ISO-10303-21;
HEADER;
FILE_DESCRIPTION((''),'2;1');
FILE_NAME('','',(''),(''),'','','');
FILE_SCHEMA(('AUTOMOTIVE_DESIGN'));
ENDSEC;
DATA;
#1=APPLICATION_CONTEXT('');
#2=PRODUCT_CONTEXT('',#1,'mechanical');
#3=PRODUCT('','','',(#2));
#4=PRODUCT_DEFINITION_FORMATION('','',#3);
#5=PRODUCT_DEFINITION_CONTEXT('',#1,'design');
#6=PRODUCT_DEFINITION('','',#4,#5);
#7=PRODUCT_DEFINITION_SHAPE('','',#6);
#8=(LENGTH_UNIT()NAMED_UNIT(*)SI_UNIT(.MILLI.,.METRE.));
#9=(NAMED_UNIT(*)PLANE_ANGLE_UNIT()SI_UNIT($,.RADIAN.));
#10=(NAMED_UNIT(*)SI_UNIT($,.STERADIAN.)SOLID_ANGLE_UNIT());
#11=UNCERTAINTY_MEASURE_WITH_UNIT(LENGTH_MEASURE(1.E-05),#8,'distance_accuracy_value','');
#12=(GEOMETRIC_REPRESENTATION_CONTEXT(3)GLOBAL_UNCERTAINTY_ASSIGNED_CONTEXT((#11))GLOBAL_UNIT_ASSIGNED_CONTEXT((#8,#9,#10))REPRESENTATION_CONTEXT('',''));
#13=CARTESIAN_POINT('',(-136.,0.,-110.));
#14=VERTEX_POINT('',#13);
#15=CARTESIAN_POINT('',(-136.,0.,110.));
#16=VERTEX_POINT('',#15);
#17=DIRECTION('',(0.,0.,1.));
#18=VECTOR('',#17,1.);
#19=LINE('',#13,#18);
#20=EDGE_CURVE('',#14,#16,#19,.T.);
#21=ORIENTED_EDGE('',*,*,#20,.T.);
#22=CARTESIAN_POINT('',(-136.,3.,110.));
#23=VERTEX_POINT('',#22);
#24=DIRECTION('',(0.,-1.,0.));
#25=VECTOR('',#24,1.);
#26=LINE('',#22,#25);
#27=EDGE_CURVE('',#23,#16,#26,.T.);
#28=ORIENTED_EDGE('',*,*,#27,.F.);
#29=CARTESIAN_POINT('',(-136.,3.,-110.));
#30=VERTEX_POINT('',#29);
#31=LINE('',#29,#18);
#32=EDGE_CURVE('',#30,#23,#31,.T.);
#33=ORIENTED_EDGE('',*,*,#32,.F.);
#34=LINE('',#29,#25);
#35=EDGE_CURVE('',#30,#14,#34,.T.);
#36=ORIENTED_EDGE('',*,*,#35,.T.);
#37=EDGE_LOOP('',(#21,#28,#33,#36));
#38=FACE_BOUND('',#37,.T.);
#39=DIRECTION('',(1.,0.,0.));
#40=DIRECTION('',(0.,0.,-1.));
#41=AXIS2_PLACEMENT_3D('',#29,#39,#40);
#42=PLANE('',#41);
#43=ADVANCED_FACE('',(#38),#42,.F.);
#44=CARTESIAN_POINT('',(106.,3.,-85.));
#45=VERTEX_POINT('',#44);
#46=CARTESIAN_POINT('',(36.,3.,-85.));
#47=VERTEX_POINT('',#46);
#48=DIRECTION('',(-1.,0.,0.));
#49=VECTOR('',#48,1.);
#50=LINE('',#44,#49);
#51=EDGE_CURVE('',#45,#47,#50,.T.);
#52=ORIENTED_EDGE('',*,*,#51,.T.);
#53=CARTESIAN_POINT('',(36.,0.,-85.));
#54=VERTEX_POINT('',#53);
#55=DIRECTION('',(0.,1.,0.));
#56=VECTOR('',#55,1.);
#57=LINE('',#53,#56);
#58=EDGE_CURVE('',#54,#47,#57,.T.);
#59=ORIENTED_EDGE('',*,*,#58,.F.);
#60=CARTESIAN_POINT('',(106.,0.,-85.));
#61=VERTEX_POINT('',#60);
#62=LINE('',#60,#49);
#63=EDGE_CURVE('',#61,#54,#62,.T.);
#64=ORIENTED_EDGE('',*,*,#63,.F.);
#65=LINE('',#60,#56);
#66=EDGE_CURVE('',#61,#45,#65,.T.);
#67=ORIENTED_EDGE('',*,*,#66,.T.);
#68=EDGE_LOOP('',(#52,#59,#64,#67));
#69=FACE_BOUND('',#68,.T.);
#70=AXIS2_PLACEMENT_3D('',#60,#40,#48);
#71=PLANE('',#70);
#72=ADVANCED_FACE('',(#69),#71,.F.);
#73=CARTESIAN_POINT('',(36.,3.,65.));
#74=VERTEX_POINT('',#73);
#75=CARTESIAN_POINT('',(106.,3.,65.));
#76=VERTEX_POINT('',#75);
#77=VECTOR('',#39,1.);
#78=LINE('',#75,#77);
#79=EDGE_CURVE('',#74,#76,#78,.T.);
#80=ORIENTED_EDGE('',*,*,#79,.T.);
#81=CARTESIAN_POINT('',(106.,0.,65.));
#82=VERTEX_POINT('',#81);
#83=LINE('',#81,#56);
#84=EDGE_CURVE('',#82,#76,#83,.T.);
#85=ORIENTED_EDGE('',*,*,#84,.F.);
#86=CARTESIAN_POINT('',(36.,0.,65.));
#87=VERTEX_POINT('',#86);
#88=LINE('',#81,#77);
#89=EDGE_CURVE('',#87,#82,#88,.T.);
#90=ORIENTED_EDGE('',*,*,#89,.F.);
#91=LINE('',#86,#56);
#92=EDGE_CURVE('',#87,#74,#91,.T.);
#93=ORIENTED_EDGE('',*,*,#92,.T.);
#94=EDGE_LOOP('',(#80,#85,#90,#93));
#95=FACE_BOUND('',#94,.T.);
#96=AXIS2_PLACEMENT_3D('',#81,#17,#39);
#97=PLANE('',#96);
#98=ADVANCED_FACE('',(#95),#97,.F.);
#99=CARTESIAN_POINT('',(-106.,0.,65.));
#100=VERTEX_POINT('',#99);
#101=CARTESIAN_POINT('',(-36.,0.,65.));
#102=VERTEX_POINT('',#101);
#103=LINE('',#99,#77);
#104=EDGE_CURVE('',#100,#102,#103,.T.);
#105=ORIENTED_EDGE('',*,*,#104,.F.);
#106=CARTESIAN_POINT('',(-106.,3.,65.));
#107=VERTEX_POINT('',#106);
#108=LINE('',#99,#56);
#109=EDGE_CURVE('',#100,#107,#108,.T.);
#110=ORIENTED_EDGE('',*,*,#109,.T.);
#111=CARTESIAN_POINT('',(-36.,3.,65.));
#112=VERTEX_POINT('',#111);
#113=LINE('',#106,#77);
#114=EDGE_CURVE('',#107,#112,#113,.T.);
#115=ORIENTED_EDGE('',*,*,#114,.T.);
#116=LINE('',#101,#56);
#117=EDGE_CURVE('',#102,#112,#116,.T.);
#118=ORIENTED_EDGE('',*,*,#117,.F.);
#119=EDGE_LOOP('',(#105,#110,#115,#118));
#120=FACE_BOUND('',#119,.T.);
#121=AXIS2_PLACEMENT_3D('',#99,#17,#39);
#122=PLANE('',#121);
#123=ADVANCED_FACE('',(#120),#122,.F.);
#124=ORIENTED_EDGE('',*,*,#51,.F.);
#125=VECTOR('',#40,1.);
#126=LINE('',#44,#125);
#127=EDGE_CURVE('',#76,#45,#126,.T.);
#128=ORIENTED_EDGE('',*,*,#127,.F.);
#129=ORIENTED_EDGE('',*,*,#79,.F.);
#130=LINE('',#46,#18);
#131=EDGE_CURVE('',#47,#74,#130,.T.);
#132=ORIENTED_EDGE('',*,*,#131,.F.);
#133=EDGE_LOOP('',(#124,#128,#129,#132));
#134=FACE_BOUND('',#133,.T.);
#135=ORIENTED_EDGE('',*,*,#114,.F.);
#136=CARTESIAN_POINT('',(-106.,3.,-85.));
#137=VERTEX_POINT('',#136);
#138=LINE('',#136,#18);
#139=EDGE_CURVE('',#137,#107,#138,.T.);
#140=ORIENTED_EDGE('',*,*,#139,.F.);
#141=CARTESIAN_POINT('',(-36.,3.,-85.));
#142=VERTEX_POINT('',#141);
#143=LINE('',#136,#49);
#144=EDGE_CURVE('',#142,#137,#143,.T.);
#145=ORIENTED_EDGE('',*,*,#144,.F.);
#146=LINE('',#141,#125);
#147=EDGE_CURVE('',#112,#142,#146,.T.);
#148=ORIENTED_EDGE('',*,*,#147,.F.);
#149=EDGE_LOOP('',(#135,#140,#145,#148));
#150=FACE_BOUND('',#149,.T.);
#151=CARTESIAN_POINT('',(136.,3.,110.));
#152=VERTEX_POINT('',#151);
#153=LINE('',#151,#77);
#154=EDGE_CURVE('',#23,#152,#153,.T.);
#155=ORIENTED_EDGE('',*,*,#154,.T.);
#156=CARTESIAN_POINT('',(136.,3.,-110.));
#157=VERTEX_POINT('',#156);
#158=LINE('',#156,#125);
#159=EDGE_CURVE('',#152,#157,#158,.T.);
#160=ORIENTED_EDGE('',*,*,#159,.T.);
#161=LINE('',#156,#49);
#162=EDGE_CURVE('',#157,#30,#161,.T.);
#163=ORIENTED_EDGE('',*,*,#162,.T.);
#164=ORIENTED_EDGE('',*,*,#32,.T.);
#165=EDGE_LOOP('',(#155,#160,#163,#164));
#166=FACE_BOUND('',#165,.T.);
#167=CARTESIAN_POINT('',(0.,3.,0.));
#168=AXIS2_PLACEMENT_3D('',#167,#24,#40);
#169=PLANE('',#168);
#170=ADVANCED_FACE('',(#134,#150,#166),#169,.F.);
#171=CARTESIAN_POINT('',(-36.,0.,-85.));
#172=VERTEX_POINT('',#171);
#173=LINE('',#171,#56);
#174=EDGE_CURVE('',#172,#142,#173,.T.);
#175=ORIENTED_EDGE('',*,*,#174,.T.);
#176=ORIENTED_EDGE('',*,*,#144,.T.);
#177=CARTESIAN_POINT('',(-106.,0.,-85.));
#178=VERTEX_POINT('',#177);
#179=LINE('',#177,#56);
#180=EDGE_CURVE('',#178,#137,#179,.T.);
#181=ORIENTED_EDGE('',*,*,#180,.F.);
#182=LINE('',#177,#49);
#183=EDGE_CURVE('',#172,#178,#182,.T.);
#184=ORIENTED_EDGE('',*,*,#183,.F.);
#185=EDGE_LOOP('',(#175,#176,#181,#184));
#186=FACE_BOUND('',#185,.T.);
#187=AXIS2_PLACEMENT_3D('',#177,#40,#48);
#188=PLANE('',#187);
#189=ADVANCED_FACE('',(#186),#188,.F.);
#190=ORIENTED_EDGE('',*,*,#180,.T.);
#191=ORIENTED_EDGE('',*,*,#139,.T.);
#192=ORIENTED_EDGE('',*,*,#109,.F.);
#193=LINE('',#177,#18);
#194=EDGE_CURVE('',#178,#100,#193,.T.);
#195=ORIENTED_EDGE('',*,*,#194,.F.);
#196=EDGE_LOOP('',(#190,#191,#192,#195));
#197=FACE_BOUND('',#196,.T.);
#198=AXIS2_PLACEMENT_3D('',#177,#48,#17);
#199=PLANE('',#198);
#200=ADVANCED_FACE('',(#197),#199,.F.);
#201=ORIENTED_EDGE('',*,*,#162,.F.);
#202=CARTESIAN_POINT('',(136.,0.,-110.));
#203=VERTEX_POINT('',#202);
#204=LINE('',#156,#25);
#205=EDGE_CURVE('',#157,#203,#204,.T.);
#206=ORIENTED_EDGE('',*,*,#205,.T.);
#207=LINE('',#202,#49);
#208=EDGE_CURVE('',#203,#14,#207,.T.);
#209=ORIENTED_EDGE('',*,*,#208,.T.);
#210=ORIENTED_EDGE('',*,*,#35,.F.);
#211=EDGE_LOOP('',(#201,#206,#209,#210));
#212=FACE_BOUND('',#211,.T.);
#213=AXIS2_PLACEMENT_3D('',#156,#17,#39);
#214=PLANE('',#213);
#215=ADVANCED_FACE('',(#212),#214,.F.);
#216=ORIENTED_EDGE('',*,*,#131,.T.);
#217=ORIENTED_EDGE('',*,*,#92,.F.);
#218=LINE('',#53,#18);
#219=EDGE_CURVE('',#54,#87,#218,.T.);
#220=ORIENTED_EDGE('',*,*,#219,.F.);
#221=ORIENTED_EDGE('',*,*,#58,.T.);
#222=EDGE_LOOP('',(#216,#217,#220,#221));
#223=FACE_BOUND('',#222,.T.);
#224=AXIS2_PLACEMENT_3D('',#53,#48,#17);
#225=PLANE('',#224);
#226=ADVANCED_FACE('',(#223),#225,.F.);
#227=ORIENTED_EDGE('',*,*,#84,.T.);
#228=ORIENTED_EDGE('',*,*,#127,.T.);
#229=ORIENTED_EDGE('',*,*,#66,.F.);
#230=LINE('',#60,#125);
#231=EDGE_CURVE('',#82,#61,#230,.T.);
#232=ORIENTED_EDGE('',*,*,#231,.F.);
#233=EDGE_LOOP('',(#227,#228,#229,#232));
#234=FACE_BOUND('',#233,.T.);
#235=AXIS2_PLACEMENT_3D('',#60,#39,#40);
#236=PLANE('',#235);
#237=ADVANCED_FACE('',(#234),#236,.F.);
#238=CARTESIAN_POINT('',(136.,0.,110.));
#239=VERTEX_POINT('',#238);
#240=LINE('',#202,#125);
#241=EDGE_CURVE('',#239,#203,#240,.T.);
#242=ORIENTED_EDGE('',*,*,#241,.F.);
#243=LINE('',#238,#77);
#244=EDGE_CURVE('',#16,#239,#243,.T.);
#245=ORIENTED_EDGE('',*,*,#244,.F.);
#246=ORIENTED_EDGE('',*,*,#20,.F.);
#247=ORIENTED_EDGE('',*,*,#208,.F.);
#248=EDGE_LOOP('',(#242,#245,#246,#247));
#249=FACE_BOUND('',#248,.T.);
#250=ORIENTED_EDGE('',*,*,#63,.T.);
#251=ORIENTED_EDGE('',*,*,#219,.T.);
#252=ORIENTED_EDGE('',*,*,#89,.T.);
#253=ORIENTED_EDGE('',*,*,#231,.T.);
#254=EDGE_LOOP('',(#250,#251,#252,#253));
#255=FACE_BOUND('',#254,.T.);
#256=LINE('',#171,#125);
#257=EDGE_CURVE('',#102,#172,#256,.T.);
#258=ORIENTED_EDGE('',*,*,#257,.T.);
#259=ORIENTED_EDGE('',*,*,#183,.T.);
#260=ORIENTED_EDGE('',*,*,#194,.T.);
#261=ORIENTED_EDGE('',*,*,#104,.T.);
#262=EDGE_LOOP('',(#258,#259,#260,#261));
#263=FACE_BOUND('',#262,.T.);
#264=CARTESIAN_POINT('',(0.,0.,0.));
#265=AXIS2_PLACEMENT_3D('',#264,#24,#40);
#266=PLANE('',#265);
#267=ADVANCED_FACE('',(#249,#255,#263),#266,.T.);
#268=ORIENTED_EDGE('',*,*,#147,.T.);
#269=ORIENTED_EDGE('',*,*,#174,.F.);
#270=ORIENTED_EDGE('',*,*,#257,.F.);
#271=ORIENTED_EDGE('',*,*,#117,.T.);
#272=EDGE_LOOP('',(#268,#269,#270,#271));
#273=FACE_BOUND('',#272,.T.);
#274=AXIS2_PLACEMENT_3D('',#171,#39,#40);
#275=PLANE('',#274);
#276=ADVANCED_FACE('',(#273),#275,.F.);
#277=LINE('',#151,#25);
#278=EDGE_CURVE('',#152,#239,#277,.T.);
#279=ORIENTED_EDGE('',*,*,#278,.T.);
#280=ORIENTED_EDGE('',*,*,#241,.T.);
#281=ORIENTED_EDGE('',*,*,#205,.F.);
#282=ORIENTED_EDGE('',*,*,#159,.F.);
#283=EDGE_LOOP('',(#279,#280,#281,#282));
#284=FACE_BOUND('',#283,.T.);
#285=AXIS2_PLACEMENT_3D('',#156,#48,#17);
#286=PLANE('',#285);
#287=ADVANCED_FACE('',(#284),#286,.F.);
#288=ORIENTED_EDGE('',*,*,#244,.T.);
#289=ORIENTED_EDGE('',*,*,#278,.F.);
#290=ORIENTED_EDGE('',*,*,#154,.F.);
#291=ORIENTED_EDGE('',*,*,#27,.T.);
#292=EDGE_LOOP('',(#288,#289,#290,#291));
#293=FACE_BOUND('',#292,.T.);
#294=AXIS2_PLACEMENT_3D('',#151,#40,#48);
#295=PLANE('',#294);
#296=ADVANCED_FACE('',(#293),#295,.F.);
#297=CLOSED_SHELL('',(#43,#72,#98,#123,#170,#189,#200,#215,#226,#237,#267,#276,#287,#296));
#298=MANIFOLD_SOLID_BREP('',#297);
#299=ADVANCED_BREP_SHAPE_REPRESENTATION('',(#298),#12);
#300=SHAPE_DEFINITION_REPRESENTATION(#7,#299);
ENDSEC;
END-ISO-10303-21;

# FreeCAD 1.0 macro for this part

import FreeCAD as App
import Part
import Sketcher
from FreeCAD import Vector


def add_polygon(sketch, points):
    """Adds a closed chain of lines whose ends are joined by coincident constraints."""
    first, n = sketch.GeometryCount, len(points)
    for a, b in zip(points, points[1:] + points[:1]):
        sketch.addGeometry(Part.LineSegment(App.Vector(*a, 0), App.Vector(*b, 0)), False)
    for i in range(n):
        sketch.addConstraint(Sketcher.Constraint("Coincident", first + i, 2, first + (i + 1) % n, 1))

doc = App.newDocument("Part")
body = doc.addObject("PartDesign::Body", "Body")

# Sketch on XZ plane
sketch1 = doc.addObject("Sketcher::SketchObject", "Sketch")
body.addObject(sketch1)
sketch1.AttachmentSupport = (doc.XZ_Plane, [""])
sketch1.MapMode = "FlatFace"
add_polygon(sketch1, [(-136, -110), (-136, 110), (136, 110), (136, -110)])  # lines 0-3
sketch1.addConstraint(Sketcher.Constraint("Vertical", 0))
sketch1.addConstraint(Sketcher.Constraint("Horizontal", 1))
sketch1.addConstraint(Sketcher.Constraint("Vertical", 2))
sketch1.addConstraint(Sketcher.Constraint("Horizontal", 3))
sketch1.addConstraint(Sketcher.Constraint("Symmetric", 0, 2, 2, 2, -1, 1))
sketch1.addConstraint(Sketcher.Constraint("DistanceX", 1, 1, 1, 2, 272.0))
sketch1.addConstraint(Sketcher.Constraint("DistanceY", 0, 1, 0, 2, 220.0))
pad1 = doc.addObject("PartDesign::Pad", "Pad")
body.addObject(pad1)
pad1.Profile = sketch1
pad1.Length = 3
pad1.Reversed = True

# Sketch on XZ plane
sketch2 = doc.addObject("Sketcher::SketchObject", "Sketch001")
body.addObject(sketch2)
sketch2.AttachmentSupport = (doc.XZ_Plane, [""])
sketch2.MapMode = "FlatFace"
sketch2.AttachmentOffset = App.Placement(Vector(0, 0, -3), App.Rotation())
add_polygon(sketch2, [(-106, -85), (-106, 65), (-36, 65), (-36, -85)])  # lines 0-3
add_polygon(sketch2, [(36, -85), (36, 65), (106, 65), (106, -85)])  # lines 4-7
sketch2.addConstraint(Sketcher.Constraint("Vertical", 0))
sketch2.addConstraint(Sketcher.Constraint("Horizontal", 1))
sketch2.addConstraint(Sketcher.Constraint("Vertical", 2))
sketch2.addConstraint(Sketcher.Constraint("Horizontal", 3))
sketch2.addConstraint(Sketcher.Constraint("Vertical", 4))
sketch2.addConstraint(Sketcher.Constraint("Horizontal", 5))
sketch2.addConstraint(Sketcher.Constraint("Vertical", 6))
sketch2.addConstraint(Sketcher.Constraint("Horizontal", 7))
sketch2.addConstraint(Sketcher.Constraint("Symmetric", 1, 2, 4, 2, -2))
sketch2.addConstraint(Sketcher.Constraint("Symmetric", 3, 2, 6, 2, -2))
sketch2.addConstraint(Sketcher.Constraint("DistanceX", 1, 1, 1, 2, 70.0))
sketch2.addConstraint(Sketcher.Constraint("DistanceY", 0, 1, 0, 2, 150.0))
sketch2.addConstraint(Sketcher.Constraint("DistanceX", 0, 2, -1, 1, 106.0))
sketch2.addConstraint(Sketcher.Constraint("DistanceY", -1, 1, 0, 2, 65.0))
pocket1 = doc.addObject("PartDesign::Pocket", "Pocket")
body.addObject(pocket1)
pocket1.Profile = sketch2
pocket1.Type = "ThroughAll"
pocket1.Reversed = True

doc.recompute()
